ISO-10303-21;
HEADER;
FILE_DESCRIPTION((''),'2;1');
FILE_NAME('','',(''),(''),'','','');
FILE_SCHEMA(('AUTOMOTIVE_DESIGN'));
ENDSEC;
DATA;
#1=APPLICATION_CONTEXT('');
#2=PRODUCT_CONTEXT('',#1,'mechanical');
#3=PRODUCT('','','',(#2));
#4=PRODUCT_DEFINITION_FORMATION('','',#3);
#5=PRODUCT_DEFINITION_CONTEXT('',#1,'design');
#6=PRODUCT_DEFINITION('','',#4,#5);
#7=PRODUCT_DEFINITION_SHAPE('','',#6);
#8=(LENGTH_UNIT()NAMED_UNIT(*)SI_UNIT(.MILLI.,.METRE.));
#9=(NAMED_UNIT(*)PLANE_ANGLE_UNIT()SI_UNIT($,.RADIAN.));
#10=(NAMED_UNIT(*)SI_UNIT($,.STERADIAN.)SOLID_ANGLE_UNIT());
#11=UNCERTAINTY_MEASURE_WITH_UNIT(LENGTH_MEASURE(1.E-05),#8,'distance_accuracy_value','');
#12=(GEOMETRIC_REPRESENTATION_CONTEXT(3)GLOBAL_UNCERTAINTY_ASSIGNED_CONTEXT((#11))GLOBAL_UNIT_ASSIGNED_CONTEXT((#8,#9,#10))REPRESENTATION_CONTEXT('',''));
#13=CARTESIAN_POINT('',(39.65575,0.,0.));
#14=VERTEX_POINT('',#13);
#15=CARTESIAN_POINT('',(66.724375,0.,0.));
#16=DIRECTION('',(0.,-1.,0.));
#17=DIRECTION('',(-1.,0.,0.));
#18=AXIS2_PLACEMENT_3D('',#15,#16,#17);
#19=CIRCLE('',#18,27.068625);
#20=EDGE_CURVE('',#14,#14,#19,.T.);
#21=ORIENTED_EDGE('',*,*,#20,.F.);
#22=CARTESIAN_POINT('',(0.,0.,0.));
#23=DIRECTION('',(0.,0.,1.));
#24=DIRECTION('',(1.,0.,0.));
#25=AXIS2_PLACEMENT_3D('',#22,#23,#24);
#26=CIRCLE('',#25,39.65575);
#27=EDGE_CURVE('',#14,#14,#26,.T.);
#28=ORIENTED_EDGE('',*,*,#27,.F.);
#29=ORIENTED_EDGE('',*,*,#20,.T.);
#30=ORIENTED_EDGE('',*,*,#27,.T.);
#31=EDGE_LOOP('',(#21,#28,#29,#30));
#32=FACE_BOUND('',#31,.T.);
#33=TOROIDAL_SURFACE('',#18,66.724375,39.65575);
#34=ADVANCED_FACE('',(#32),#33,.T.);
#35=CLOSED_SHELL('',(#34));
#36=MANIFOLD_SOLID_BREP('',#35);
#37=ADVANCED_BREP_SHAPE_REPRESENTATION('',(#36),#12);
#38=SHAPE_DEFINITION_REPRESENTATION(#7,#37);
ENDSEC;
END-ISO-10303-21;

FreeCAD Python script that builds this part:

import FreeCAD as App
import Part
import Sketcher

doc = App.newDocument("Part")
body = doc.addObject("PartDesign::Body", "Body")

sketch1 = doc.addObject("Sketcher::SketchObject", "Sketch")
body.addObject(sketch1)
sketch1.AttachmentSupport = (doc.XY_Plane, [""])
sketch1.MapMode = "FlatFace"
sketch1.addGeometry(Part.Circle(App.Vector(0, 0, 0), App.Vector(0, 0, 1), 40), False)
sketch1.addGeometry(Part.LineSegment(App.Vector(67, 0, 0), App.Vector(67, -10, 0)), True)
sketch1.addConstraint([
    Sketcher.Constraint("Vertical", 1),
    Sketcher.Constraint("Coincident", 0, 3, -1, 1),
    Sketcher.Constraint("PointOnObject", 1, 1, -1),
    Sketcher.Constraint("DistanceY", 1, 2, 1, 1, 10.0),
    Sketcher.Constraint("Diameter", 0, 79.3115),
    Sketcher.Constraint("DistanceX", -1, 1, 1, 1, 66.724375),
])
revolution = doc.addObject("PartDesign::Revolution", "Revolution")
body.addObject(revolution)
revolution.Profile = sketch1
revolution.ReferenceAxis = (sketch1, ["Axis0"])
revolution.Angle = 360

doc.recompute()
